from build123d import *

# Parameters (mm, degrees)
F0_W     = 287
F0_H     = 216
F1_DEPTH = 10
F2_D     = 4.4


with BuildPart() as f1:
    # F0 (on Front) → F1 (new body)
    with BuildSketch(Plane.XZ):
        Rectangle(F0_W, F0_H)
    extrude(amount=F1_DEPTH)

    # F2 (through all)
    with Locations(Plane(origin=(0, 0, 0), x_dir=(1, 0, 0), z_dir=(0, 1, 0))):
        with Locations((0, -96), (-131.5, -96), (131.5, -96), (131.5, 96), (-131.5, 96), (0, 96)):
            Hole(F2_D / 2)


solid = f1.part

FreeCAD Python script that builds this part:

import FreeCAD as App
import Part
import Sketcher
from FreeCAD import Vector
Q = App.Units.Quantity


def add_polygon(sketch, points):
    """Adds a closed chain of lines whose ends are joined by coincident constraints."""
    first, n = sketch.GeometryCount, len(points)
    for a, b in zip(points, points[1:] + points[:1]):
        sketch.addGeometry(Part.LineSegment(App.Vector(*a, 0), App.Vector(*b, 0)), False)
    for i in range(n):
        sketch.addConstraint(Sketcher.Constraint("Coincident", first + i, 2, first + (i + 1) % n, 1))

doc = App.newDocument("Part")
params = doc.addObject("Spreadsheet::Sheet", "Params")
for row, (alias, value) in enumerate([
    ("sketch1_width", "287 mm"),
    ("sketch1_height", "216 mm"),
    ("pad1_length", "10 mm"),
    ("sketch2_diameter", "4.4 mm"),
    ("hole_diameter", "4.4 mm"),
], start=1):
    params.set(f"A{row}", alias)
    params.set(f"B{row}", "=" + value)
    params.setAlias(f"B{row}", alias)

body = doc.addObject("PartDesign::Body", "Body")

# Sketch on XZ plane
sketch1 = doc.addObject("Sketcher::SketchObject", "Sketch")
body.addObject(sketch1)
sketch1.AttachmentSupport = (doc.XZ_Plane, [""])
sketch1.MapMode = "FlatFace"
add_polygon(sketch1, [(-143.5, 108), (-143.5, -108), (143.5, -108), (143.5, 108)])  # lines 0-3
sketch1.addConstraint([
    Sketcher.Constraint("Vertical", 0),
    Sketcher.Constraint("Horizontal", 1),
    Sketcher.Constraint("Vertical", 2),
    Sketcher.Constraint("Horizontal", 3),
    Sketcher.Constraint("Symmetric", 0, 2, 2, 2, -1, 1),
    Sketcher.Constraint("DistanceX", 1, 1, 1, 2, Q("287 mm")),
    Sketcher.Constraint("DistanceY", 0, 2, 0, 1, Q("216 mm")),
])
sketch1.setExpression("Constraints[9]", "Params.sketch1_width")
sketch1.setExpression("Constraints[10]", "Params.sketch1_height")
pad1 = doc.addObject("PartDesign::Pad", "Pad")
body.addObject(pad1)
pad1.Profile = sketch1
pad1.setExpression("Length", "Params.pad1_length")

# Sketch on XZ plane
sketch2 = doc.addObject("Sketcher::SketchObject", "Sketch001")
body.addObject(sketch2)
sketch2.AttachmentSupport = (doc.XZ_Plane, [""])
sketch2.MapMode = "FlatFace"
sketch2.addGeometry([
    Part.Circle(Vector(0, 96, 0), Vector(0, 0, 1), 2.2),  # 0
    Part.Circle(Vector(-131.5, 96, 0), Vector(0, 0, 1), 2.2),  # 1
    Part.Circle(Vector(131.5, 96, 0), Vector(0, 0, 1), 2.2),  # 2
    Part.Circle(Vector(131.5, -96, 0), Vector(0, 0, 1), 2.2),  # 3
    Part.Circle(Vector(-131.5, -96, 0), Vector(0, 0, 1), 2.2),  # 4
    Part.Circle(Vector(0, -96, 0), Vector(0, 0, 1), 2.2),  # 5
], False)
sketch2.addConstraint([
    Sketcher.Constraint("Equal", 0, 1),
    Sketcher.Constraint("Equal", 1, 2),
    Sketcher.Constraint("Equal", 2, 3),
    Sketcher.Constraint("Equal", 3, 4),
    Sketcher.Constraint("Equal", 4, 5),
    Sketcher.Constraint("Symmetric", 1, 3, 3, 3, -1, 1),
    Sketcher.Constraint("Symmetric", 2, 3, 4, 3, -1, 1),
    Sketcher.Constraint("Symmetric", 0, 3, 5, 3, -1, 1),
    Sketcher.Constraint("Symmetric", 1, 3, 2, 3, -2),
    Sketcher.Constraint("PointOnObject", 0, 3, -2),
    Sketcher.Constraint("Horizontal", 0, 3, 1, 3),
    Sketcher.Constraint("Diameter", 0, Q("4.4 mm")),
    Sketcher.Constraint("DistanceY", -1, 1, 0, 3, Q("96 mm")),
    Sketcher.Constraint("DistanceX", 1, 3, 2, 3, Q("263 mm")),
])
sketch2.setExpression("Constraints[11]", "Params.sketch2_diameter")
doc.recompute()
hole = doc.addObject("PartDesign::Hole", "Hole")
body.addObject(hole)
hole.Profile = sketch2
hole.ThreadType = "None"
hole.setExpression("Diameter", "Params.hole_diameter")
hole.DepthType = "ThroughAll"
hole.Reversed = True

doc.recompute()
